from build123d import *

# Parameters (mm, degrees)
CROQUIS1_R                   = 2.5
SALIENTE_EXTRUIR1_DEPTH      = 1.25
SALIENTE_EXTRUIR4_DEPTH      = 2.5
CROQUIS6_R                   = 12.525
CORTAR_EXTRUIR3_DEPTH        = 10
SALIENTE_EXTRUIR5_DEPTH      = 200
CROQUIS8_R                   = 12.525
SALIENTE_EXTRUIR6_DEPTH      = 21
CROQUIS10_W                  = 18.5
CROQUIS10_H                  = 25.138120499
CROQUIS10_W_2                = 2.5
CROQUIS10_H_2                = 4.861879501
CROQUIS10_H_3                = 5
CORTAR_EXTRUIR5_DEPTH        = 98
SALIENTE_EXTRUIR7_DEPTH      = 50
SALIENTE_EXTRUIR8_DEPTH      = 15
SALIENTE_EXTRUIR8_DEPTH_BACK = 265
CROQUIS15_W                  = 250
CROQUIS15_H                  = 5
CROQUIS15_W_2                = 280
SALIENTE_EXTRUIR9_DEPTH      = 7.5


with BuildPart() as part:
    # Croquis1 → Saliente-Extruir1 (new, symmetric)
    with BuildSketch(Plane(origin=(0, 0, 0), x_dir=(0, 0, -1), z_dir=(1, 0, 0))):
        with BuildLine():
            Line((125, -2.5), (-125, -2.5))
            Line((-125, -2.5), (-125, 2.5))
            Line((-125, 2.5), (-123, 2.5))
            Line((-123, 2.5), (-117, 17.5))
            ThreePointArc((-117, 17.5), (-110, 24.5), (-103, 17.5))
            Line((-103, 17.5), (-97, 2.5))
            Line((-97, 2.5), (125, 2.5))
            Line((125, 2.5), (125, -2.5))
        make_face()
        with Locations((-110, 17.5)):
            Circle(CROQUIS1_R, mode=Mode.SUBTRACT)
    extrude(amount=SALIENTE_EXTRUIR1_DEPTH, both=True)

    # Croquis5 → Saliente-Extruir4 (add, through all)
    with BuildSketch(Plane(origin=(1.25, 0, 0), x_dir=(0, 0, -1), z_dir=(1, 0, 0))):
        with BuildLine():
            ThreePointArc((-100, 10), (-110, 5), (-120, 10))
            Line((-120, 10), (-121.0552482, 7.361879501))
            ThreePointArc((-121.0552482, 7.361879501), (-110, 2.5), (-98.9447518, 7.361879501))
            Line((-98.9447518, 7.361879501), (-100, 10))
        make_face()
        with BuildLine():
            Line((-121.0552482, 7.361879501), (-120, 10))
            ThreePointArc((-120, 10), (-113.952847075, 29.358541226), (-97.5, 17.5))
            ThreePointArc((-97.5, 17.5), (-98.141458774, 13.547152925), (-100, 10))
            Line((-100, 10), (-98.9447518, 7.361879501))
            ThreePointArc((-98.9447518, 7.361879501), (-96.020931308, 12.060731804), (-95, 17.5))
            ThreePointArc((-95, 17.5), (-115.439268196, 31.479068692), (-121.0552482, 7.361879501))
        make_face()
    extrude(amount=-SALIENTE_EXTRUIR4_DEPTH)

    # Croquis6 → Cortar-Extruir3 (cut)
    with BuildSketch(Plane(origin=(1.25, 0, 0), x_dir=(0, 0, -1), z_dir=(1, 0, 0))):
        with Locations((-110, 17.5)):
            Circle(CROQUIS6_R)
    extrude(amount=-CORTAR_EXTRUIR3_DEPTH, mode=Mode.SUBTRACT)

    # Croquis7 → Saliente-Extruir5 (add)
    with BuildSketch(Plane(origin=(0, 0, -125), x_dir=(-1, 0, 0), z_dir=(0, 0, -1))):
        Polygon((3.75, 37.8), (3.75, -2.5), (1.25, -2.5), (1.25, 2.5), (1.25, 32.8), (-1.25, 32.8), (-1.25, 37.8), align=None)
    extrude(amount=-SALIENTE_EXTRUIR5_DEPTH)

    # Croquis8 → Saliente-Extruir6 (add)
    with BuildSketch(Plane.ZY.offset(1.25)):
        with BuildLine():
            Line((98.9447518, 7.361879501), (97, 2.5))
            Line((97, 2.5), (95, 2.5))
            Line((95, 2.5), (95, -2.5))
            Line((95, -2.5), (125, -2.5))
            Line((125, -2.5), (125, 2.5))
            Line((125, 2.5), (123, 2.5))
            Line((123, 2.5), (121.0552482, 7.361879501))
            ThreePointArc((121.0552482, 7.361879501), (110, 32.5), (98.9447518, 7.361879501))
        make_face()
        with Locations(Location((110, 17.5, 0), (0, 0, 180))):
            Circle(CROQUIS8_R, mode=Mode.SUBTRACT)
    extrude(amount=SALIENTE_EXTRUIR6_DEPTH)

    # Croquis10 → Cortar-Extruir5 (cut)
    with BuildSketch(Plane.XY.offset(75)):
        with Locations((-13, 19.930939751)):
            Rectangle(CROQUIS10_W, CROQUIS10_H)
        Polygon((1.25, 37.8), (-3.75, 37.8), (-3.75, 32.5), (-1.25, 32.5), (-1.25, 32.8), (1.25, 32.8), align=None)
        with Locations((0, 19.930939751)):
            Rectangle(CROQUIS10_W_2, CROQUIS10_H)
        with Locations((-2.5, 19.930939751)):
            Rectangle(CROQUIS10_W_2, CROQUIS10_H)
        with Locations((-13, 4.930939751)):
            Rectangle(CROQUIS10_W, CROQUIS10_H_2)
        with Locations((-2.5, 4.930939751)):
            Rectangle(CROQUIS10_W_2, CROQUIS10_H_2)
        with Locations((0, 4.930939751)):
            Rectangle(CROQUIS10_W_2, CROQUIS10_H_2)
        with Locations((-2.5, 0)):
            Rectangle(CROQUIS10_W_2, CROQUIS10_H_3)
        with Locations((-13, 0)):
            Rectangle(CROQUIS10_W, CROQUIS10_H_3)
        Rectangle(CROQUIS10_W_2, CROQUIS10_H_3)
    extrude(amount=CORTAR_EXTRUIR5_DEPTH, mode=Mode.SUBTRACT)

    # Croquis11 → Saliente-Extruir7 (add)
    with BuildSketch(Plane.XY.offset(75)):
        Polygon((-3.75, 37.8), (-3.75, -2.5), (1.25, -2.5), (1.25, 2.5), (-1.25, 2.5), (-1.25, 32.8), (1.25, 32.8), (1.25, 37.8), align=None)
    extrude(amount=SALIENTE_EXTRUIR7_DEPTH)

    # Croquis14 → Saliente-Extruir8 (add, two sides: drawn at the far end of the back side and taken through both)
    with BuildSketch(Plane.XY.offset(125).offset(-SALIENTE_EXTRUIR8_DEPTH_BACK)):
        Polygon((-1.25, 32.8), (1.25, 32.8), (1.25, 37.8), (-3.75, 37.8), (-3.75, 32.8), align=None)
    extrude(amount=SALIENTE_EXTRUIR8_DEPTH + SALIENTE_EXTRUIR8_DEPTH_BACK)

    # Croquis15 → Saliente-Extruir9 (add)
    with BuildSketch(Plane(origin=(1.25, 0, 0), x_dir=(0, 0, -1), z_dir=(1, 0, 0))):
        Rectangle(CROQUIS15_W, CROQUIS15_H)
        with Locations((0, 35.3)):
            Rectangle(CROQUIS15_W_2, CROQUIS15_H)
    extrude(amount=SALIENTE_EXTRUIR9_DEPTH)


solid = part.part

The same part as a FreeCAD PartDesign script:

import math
import FreeCAD as App
import Part
import Sketcher
Q = App.Units.Quantity


def add_polygon(sketch, points):
    """Adds a closed chain of lines whose ends are joined by coincident constraints."""
    first, n = sketch.GeometryCount, len(points)
    for a, b in zip(points, points[1:] + points[:1]):
        sketch.addGeometry(Part.LineSegment(App.Vector(*a, 0), App.Vector(*b, 0)), False)
    for i in range(n):
        sketch.addConstraint(Sketcher.Constraint("Coincident", first + i, 2, first + (i + 1) % n, 1))

doc = App.newDocument("Part")
body = doc.addObject("PartDesign::Body", "Body")

sketch1 = body.newObject("Sketcher::SketchObject", "Sketch")
sketch1.AttachmentSupport = (doc.getObject("YZ_Plane"), [""])
sketch1.MapMode = "FlatFace"
sketch1.addGeometry(Part.LineSegment(App.Vector(-2.5, 125, 0), App.Vector(-2.5, -125, 0)), False)
sketch1.addGeometry(Part.LineSegment(App.Vector(-2.5, -125, 0), App.Vector(2.5, -125, 0)), False)
sketch1.addGeometry(Part.LineSegment(App.Vector(2.5, -125, 0), App.Vector(2.5, 97, 0)), False)
sketch1.addGeometry(Part.LineSegment(App.Vector(2.5, 97, 0), App.Vector(17.5, 103, 0)), False)
sketch1.addGeometry(Part.ArcOfCircle(Part.Circle(App.Vector(17.5, 110, 0), App.Vector(0, 0, 1), 7), math.radians(-90), math.radians(90)), False)
sketch1.addGeometry(Part.LineSegment(App.Vector(17.5, 117, 0), App.Vector(2.5, 123, 0)), False)
sketch1.addGeometry(Part.LineSegment(App.Vector(2.5, 123, 0), App.Vector(2.5, 125, 0)), False)
sketch1.addGeometry(Part.LineSegment(App.Vector(2.5, 125, 0), App.Vector(-2.5, 125, 0)), False)
sketch1.addGeometry(Part.Circle(App.Vector(17.5, 110, 0), App.Vector(0, 0, 1), 2.5), False)
sketch1.addConstraint(Sketcher.Constraint("Coincident", 0, 2, 1, 1))
sketch1.addConstraint(Sketcher.Constraint("Coincident", 1, 2, 2, 1))
sketch1.addConstraint(Sketcher.Constraint("Coincident", 2, 2, 3, 1))
sketch1.addConstraint(Sketcher.Constraint("Coincident", 3, 2, 4, 1))
sketch1.addConstraint(Sketcher.Constraint("Coincident", 4, 2, 5, 1))
sketch1.addConstraint(Sketcher.Constraint("Coincident", 5, 2, 6, 1))
sketch1.addConstraint(Sketcher.Constraint("Coincident", 6, 2, 7, 1))
sketch1.addConstraint(Sketcher.Constraint("Coincident", 7, 2, 0, 1))
sketch1.addConstraint(Sketcher.Constraint("Vertical", 0))
sketch1.addConstraint(Sketcher.Constraint("Horizontal", 1))
sketch1.addConstraint(Sketcher.Constraint("Vertical", 2))
sketch1.addConstraint(Sketcher.Constraint("Vertical", 6))
sketch1.addConstraint(Sketcher.Constraint("Horizontal", 7))
sketch1.addConstraint(Sketcher.Constraint("Coincident", 8, 3, 4, 3))
sketch1.addConstraint(Sketcher.Constraint("Symmetric", 0, 2, 6, 2, -1, 1))
sketch1.addConstraint(Sketcher.Constraint("Vertical", 8, 3, 3, 2))
sketch1.addConstraint(Sketcher.Constraint("Vertical", 3, 2, 4, 2))
sketch1.addConstraint(Sketcher.Constraint("Vertical", 2, 2, 5, 2))
sketch1.addConstraint(Sketcher.Constraint("Equal", 3, 5))
sketch1.addConstraint(Sketcher.Constraint("Diameter", 8, Q("5 mm")))
sketch1.addConstraint(Sketcher.Constraint("Radius", 4, Q("7 mm")))
sketch1.addConstraint(Sketcher.Constraint("DistanceX", 1, 1, 1, 2, Q("5 mm")))
sketch1.addConstraint(Sketcher.Constraint("DistanceY", 0, 2, 0, 1, Q("250 mm")))
sketch1.addConstraint(Sketcher.Constraint("DistanceY", 2, 1, 2, 2, Q("222 mm")))
sketch1.addConstraint(Sketcher.Constraint("DistanceY", 6, 1, 6, 2, Q("2 mm")))
sketch1.addConstraint(Sketcher.Constraint("DistanceX", 0, 2, 4, 3, Q("20 mm")))
pad1 = body.newObject("PartDesign::Pad", "Pad")
pad1.Profile = sketch1
pad1.Length = 2.5
pad1.Midplane = True

sketch2 = body.newObject("Sketcher::SketchObject", "Sketch001")
sketch2.AttachmentSupport = (doc.getObject("YZ_Plane"), [""])
sketch2.MapMode = "FlatFace"
sketch2.AttachmentOffset = App.Placement(App.Vector(0, 0, 1.25), App.Rotation())
sketch2.addGeometry(Part.ArcOfCircle(Part.Circle(App.Vector(18, 110, 0), App.Vector(0, 0, 1), 15), math.radians(133), math.radians(227)), False)
sketch2.addGeometry(Part.ArcOfCircle(Part.Circle(App.Vector(18, 110, 0), App.Vector(0, 0, 1), 15), math.radians(-133), math.radians(-90)), False)
sketch2.addGeometry(Part.ArcOfCircle(Part.Circle(App.Vector(18, 110, 0), App.Vector(0, 0, 1), 15), math.radians(-90), math.radians(133)), False)
sketch2.addGeometry(Part.ArcOfCircle(Part.Circle(App.Vector(18, 110, 0), App.Vector(0, 0, 1), 12), math.radians(127), math.radians(233)), False)
sketch2.addGeometry(Part.ArcOfCircle(Part.Circle(App.Vector(18, 110, 0), App.Vector(0, 0, 1), 12), math.radians(-90), math.radians(127)), False)
sketch2.addGeometry(Part.ArcOfCircle(Part.Circle(App.Vector(17, 110, 0), App.Vector(0, 0, 1), 12), math.radians(-127), math.radians(-90)), False)
sketch2.addConstraint(Sketcher.Constraint("Tangent", 0, 2, 1, 1))
sketch2.addConstraint(Sketcher.Constraint("Tangent", 1, 2, 2, 1))
sketch2.addConstraint(Sketcher.Constraint("Tangent", 2, 2, 0, 1))
sketch2.addConstraint(Sketcher.Constraint("Tangent", 3, 1, 4, 2))
sketch2.addConstraint(Sketcher.Constraint("Tangent", 4, 1, 5, 2))
sketch2.addConstraint(Sketcher.Constraint("Tangent", 5, 1, 3, 2))
sketch2.addConstraint(Sketcher.Constraint("Coincident", 3, 3, 0, 3))
sketch2.addConstraint(Sketcher.Constraint("Vertical", 5, 3, 1, 2))
sketch2.addConstraint(Sketcher.Constraint("Vertical", 0, 2, 2, 2))
sketch2.addConstraint(Sketcher.Constraint("Vertical", 1, 2, 4, 1))
sketch2.addConstraint(Sketcher.Constraint("Vertical", 3, 1, 5, 1))
sketch2.addConstraint(Sketcher.Constraint("Radius", 0, Q("15 mm")))
sketch2.addConstraint(Sketcher.Constraint("Radius", 3, Q("12.5 mm")))
sketch2.addConstraint(Sketcher.Constraint("DistanceY", -1, 1, 0, 3, Q("110 mm")))
sketch2.addConstraint(Sketcher.Constraint("DistanceX", -1, 1, 3, 1, Q("10 mm")))
sketch2.addConstraint(Sketcher.Constraint("DistanceY", -1, 1, 3, 1, Q("120 mm")))
sketch2.addConstraint(Sketcher.Constraint("DistanceX", -1, 1, 0, 2, Q("7.36188 mm")))
pad2 = body.newObject("PartDesign::Pad", "Pad001")
pad2.Profile = sketch2
pad2.Length = 2.5
pad2.Reversed = True

sketch3 = body.newObject("Sketcher::SketchObject", "Sketch002")
sketch3.AttachmentSupport = (doc.getObject("YZ_Plane"), [""])
sketch3.MapMode = "FlatFace"
sketch3.AttachmentOffset = App.Placement(App.Vector(0, 0, 1.25), App.Rotation())
sketch3.addGeometry(Part.Circle(App.Vector(18, 110, 0), App.Vector(0, 0, 1), 13), False)
sketch3.addConstraint(Sketcher.Constraint("Diameter", 0, Q("25.05 mm")))
sketch3.addConstraint(Sketcher.Constraint("DistanceY", -1, 1, 0, 3, Q("110 mm")))
sketch3.addConstraint(Sketcher.Constraint("DistanceX", -1, 1, 0, 3, Q("17.5 mm")))
pocket1 = body.newObject("PartDesign::Pocket", "Pocket")
pocket1.Profile = sketch3
pocket1.Length = 10

sketch4 = body.newObject("Sketcher::SketchObject", "Sketch003")
sketch4.AttachmentSupport = (doc.getObject("XY_Plane"), [""])
sketch4.MapMode = "FlatFace"
sketch4.AttachmentOffset = App.Placement(App.Vector(0, 0, -125), App.Rotation())
add_polygon(sketch4, [(-3.8, -2.5), (-3.8, 37.8), (1.2, 37.8), (1.2, 32.8), (-1.2, 32.8), (-1.2, -2.5)])
sketch4.addConstraint(Sketcher.Constraint("Vertical", 0))
sketch4.addConstraint(Sketcher.Constraint("Horizontal", 1))
sketch4.addConstraint(Sketcher.Constraint("Vertical", 2))
sketch4.addConstraint(Sketcher.Constraint("Horizontal", 3))
sketch4.addConstraint(Sketcher.Constraint("Vertical", 4))
sketch4.addConstraint(Sketcher.Constraint("Horizontal", 5))
sketch4.addConstraint(Sketcher.Constraint("Equal", 3, 5))
sketch4.addConstraint(Sketcher.Constraint("Equal", 1, 2))
sketch4.addConstraint(Sketcher.Constraint("DistanceX", 1, 1, 1, 2, Q("5 mm")))
sketch4.addConstraint(Sketcher.Constraint("DistanceY", 0, 1, 0, 2, Q("40.3 mm")))
sketch4.addConstraint(Sketcher.Constraint("DistanceY", -1, 1, 0, 2, Q("37.8 mm")))
sketch4.addConstraint(Sketcher.Constraint("DistanceX", 0, 2, -1, 1, Q("3.75 mm")))
pad3 = body.newObject("PartDesign::Pad", "Pad002")
pad3.Profile = sketch4
pad3.Length = 200

sketch5 = body.newObject("Sketcher::SketchObject", "Sketch004")
sketch5.AttachmentSupport = (doc.getObject("YZ_Plane"), [""])
sketch5.MapMode = "FlatFace"
sketch5.AttachmentOffset = App.Placement(App.Vector(0, 0, -1.25), App.Rotation())
sketch5.addGeometry(Part.LineSegment(App.Vector(7.4, 98.9, 0), App.Vector(2.5, 97, 0)), False)
sketch5.addGeometry(Part.LineSegment(App.Vector(2.5, 97, 0), App.Vector(2.5, 95, 0)), False)
sketch5.addGeometry(Part.LineSegment(App.Vector(2.5, 95, 0), App.Vector(-2.5, 95, 0)), False)
sketch5.addGeometry(Part.LineSegment(App.Vector(-2.5, 95, 0), App.Vector(-2.5, 125, 0)), False)
sketch5.addGeometry(Part.LineSegment(App.Vector(-2.5, 125, 0), App.Vector(2.5, 125, 0)), False)
sketch5.addGeometry(Part.LineSegment(App.Vector(2.5, 125, 0), App.Vector(2.5, 123, 0)), False)
sketch5.addGeometry(Part.LineSegment(App.Vector(2.5, 123, 0), App.Vector(7.4, 121.1, 0)), False)
sketch5.addGeometry(Part.ArcOfCircle(Part.Circle(App.Vector(17.5, 110, 0), App.Vector(0, 0, 1), 15), math.radians(-133), math.radians(133)), False)
sketch5.addGeometry(Part.Circle(App.Vector(17.5, 110, 0), App.Vector(0, 0, 1), 12.5), False)
sketch5.addConstraint(Sketcher.Constraint("Coincident", 0, 2, 1, 1))
sketch5.addConstraint(Sketcher.Constraint("Coincident", 1, 2, 2, 1))
sketch5.addConstraint(Sketcher.Constraint("Coincident", 2, 2, 3, 1))
sketch5.addConstraint(Sketcher.Constraint("Coincident", 3, 2, 4, 1))
sketch5.addConstraint(Sketcher.Constraint("Coincident", 4, 2, 5, 1))
sketch5.addConstraint(Sketcher.Constraint("Coincident", 5, 2, 6, 1))
sketch5.addConstraint(Sketcher.Constraint("Coincident", 6, 2, 7, 2))
sketch5.addConstraint(Sketcher.Constraint("Coincident", 7, 1, 0, 1))
sketch5.addConstraint(Sketcher.Constraint("Vertical", 1))
sketch5.addConstraint(Sketcher.Constraint("Horizontal", 2))
sketch5.addConstraint(Sketcher.Constraint("Vertical", 3))
sketch5.addConstraint(Sketcher.Constraint("Horizontal", 4))
sketch5.addConstraint(Sketcher.Constraint("Vertical", 5))
sketch5.addConstraint(Sketcher.Constraint("Coincident", 8, 3, 7, 3))
sketch5.addConstraint(Sketcher.Constraint("Vertical", 1, 2, 4, 2))
sketch5.addConstraint(Sketcher.Constraint("Vertical", 6, 2, 7, 1))
sketch5.addConstraint(Sketcher.Constraint("Equal", 1, 5))
sketch5.addConstraint(Sketcher.Constraint("Equal", 0, 6))
sketch5.addConstraint(Sketcher.Constraint("Radius", 7, Q("15 mm")))
sketch5.addConstraint(Sketcher.Constraint("Diameter", 8, Q("25.05 mm")))
sketch5.addConstraint(Sketcher.Constraint("DistanceX", 2, 2, 2, 1, Q("5 mm")))
sketch5.addConstraint(Sketcher.Constraint("DistanceY", 1, 2, 1, 1, Q("2 mm")))
sketch5.addConstraint(Sketcher.Constraint("DistanceY", 3, 1, 3, 2, Q("30 mm")))
sketch5.addConstraint(Sketcher.Constraint("DistanceY", -1, 1, 7, 3, Q("110 mm")))
sketch5.addConstraint(Sketcher.Constraint("DistanceX", 0, 2, 7, 3, Q("15 mm")))
sketch5.addConstraint(Sketcher.Constraint("DistanceX", -1, 1, 7, 3, Q("17.5 mm")))
sketch5.addConstraint(Sketcher.Constraint("DistanceX", -1, 1, 6, 2, Q("7.36188 mm")))
pad4 = body.newObject("PartDesign::Pad", "Pad003")
pad4.Profile = sketch5
pad4.Length = 21
pad4.Reversed = True

sketch6 = body.newObject("Sketcher::SketchObject", "Sketch005")
sketch6.AttachmentSupport = (doc.getObject("XY_Plane"), [""])
sketch6.MapMode = "FlatFace"
sketch6.AttachmentOffset = App.Placement(App.Vector(0, 0, 75), App.Rotation())
add_polygon(sketch6, [(-22.25, 32.5), (-22.25, -2.5), (1.25, -2.5), (1.25, 32.5), (-1.25, 32.5), (-1.25, 32.8), (1.25, 32.8), (1.25, 37.8), (-3.75, 37.8), (-3.75, 32.5)])
sketch6.addConstraint(Sketcher.Constraint("Vertical", 0))
sketch6.addConstraint(Sketcher.Constraint("Horizontal", 1))
sketch6.addConstraint(Sketcher.Constraint("Vertical", 2))
sketch6.addConstraint(Sketcher.Constraint("Horizontal", 3))
sketch6.addConstraint(Sketcher.Constraint("Vertical", 4))
sketch6.addConstraint(Sketcher.Constraint("Horizontal", 5))
sketch6.addConstraint(Sketcher.Constraint("Vertical", 6))
sketch6.addConstraint(Sketcher.Constraint("Horizontal", 7))
sketch6.addConstraint(Sketcher.Constraint("Vertical", 8))
sketch6.addConstraint(Sketcher.Constraint("Horizontal", 9))
sketch6.addConstraint(Sketcher.Constraint("Horizontal", 3, 2, 8, 2))
sketch6.addConstraint(Sketcher.Constraint("Vertical", 2, 2, 5, 2))
sketch6.addConstraint(Sketcher.Constraint("Equal", 7, 6))
sketch6.addConstraint(Sketcher.Constraint("DistanceX", 7, 2, 7, 1, Q("5 mm")))
sketch6.addConstraint(Sketcher.Constraint("DistanceY", 0, 2, 0, 1, Q("35 mm")))
sketch6.addConstraint(Sketcher.Constraint("DistanceX", 1, 1, 1, 2, Q("23.5 mm")))
sketch6.addConstraint(Sketcher.Constraint("DistanceX", 3, 2, 3, 1, Q("2.5 mm")))
sketch6.addConstraint(Sketcher.Constraint("DistanceY", 4, 1, 4, 2, Q("0.3 mm")))
sketch6.addConstraint(Sketcher.Constraint("DistanceY", 0, 2, -1, 1, Q("2.5 mm")))
sketch6.addConstraint(Sketcher.Constraint("DistanceX", 0, 2, -1, 1, Q("22.25 mm")))
pocket2 = body.newObject("PartDesign::Pocket", "Pocket001")
pocket2.Profile = sketch6
pocket2.Length = 98
pocket2.Reversed = True

sketch7 = body.newObject("Sketcher::SketchObject", "Sketch006")
sketch7.AttachmentSupport = (doc.getObject("XY_Plane"), [""])
sketch7.MapMode = "FlatFace"
sketch7.AttachmentOffset = App.Placement(App.Vector(0, 0, 75), App.Rotation())
add_polygon(sketch7, [(-3.8, 37.8), (-3.8, -2.5), (1.2, -2.5), (1.2, 2.5), (-1.2, 2.5), (-1.2, 32.8), (1.2, 32.8), (1.2, 37.8)])
sketch7.addConstraint(Sketcher.Constraint("Vertical", 0))
sketch7.addConstraint(Sketcher.Constraint("Horizontal", 1))
sketch7.addConstraint(Sketcher.Constraint("Vertical", 2))
sketch7.addConstraint(Sketcher.Constraint("Horizontal", 3))
sketch7.addConstraint(Sketcher.Constraint("Vertical", 4))
sketch7.addConstraint(Sketcher.Constraint("Horizontal", 5))
sketch7.addConstraint(Sketcher.Constraint("Vertical", 6))
sketch7.addConstraint(Sketcher.Constraint("Horizontal", 7))
sketch7.addConstraint(Sketcher.Constraint("Symmetric", 1, 2, 3, 2, -1, 1))
sketch7.addConstraint(Sketcher.Constraint("Vertical", 2, 2, 5, 2))
sketch7.addConstraint(Sketcher.Constraint("Equal", 7, 2))
sketch7.addConstraint(Sketcher.Constraint("Equal", 2, 6))
sketch7.addConstraint(Sketcher.Constraint("DistanceX", 1, 1, 1, 2, Q("5 mm")))
sketch7.addConstraint(Sketcher.Constraint("DistanceX", 3, 2, 3, 1, Q("2.5 mm")))
sketch7.addConstraint(Sketcher.Constraint("DistanceY", 0, 2, 0, 1, Q("40.3 mm")))
pad5 = body.newObject("PartDesign::Pad", "Pad004")
pad5.Profile = sketch7
pad5.Length = 50

sketch8 = body.newObject("Sketcher::SketchObject", "Sketch007")
sketch8.AttachmentSupport = (doc.getObject("XY_Plane"), [""])
sketch8.MapMode = "FlatFace"
sketch8.AttachmentOffset = App.Placement(App.Vector(0, 0, 125), App.Rotation())
add_polygon(sketch8, [(1, 33), (1, 38), (-4, 38), (-4, 33)])
sketch8.addConstraint(Sketcher.Constraint("Vertical", 0))
sketch8.addConstraint(Sketcher.Constraint("Horizontal", 1))
sketch8.addConstraint(Sketcher.Constraint("Vertical", 2))
sketch8.addConstraint(Sketcher.Constraint("Horizontal", 3))
sketch8.addConstraint(Sketcher.Constraint("Equal", 3, 0))
sketch8.addConstraint(Sketcher.Constraint("DistanceX", 1, 2, 1, 1, Q("5 mm")))
sketch8.addConstraint(Sketcher.Constraint("DistanceY", -1, 1, 0, 2, Q("37.8 mm")))
sketch8.addConstraint(Sketcher.Constraint("DistanceX", -1, 1, 0, 2, Q("1.25 mm")))
pad6 = body.newObject("PartDesign::Pad", "Pad005")
pad6.Profile = sketch8
pad6.Type = "TwoLengths"
pad6.Length = 15
pad6.Length2 = 265

sketch9 = body.newObject("Sketcher::SketchObject", "Sketch008")
sketch9.AttachmentSupport = (doc.getObject("YZ_Plane"), [""])
sketch9.MapMode = "FlatFace"
sketch9.AttachmentOffset = App.Placement(App.Vector(0, 0, 1.25), App.Rotation())
add_polygon(sketch9, [(2, 125), (-2, 125), (-2, -125), (2, -125)])
add_polygon(sketch9, [(38, 140), (33, 140), (33, -140), (38, -140)])
sketch9.addConstraint(Sketcher.Constraint("Horizontal", 0))
sketch9.addConstraint(Sketcher.Constraint("Vertical", 1))
sketch9.addConstraint(Sketcher.Constraint("Horizontal", 2))
sketch9.addConstraint(Sketcher.Constraint("Vertical", 3))
sketch9.addConstraint(Sketcher.Constraint("Horizontal", 4))
sketch9.addConstraint(Sketcher.Constraint("Vertical", 5))
sketch9.addConstraint(Sketcher.Constraint("Horizontal", 6))
sketch9.addConstraint(Sketcher.Constraint("Vertical", 7))
sketch9.addConstraint(Sketcher.Constraint("Symmetric", 0, 2, 2, 2, -1, 1))
sketch9.addConstraint(Sketcher.Constraint("Equal", 2, 4))
sketch9.addConstraint(Sketcher.Constraint("DistanceX", 0, 2, 0, 1, Q("5 mm")))
sketch9.addConstraint(Sketcher.Constraint("DistanceY", 1, 2, 1, 1, Q("250 mm")))
sketch9.addConstraint(Sketcher.Constraint("DistanceY", 5, 2, 5, 1, Q("280 mm")))
sketch9.addConstraint(Sketcher.Constraint("DistanceY", -1, 1, 4, 2, Q("140 mm")))
sketch9.addConstraint(Sketcher.Constraint("DistanceX", -1, 1, 4, 2, Q("32.8 mm")))
pad7 = body.newObject("PartDesign::Pad", "Pad006")
pad7.Profile = sketch9
pad7.Length = 7.5

doc.recompute()
